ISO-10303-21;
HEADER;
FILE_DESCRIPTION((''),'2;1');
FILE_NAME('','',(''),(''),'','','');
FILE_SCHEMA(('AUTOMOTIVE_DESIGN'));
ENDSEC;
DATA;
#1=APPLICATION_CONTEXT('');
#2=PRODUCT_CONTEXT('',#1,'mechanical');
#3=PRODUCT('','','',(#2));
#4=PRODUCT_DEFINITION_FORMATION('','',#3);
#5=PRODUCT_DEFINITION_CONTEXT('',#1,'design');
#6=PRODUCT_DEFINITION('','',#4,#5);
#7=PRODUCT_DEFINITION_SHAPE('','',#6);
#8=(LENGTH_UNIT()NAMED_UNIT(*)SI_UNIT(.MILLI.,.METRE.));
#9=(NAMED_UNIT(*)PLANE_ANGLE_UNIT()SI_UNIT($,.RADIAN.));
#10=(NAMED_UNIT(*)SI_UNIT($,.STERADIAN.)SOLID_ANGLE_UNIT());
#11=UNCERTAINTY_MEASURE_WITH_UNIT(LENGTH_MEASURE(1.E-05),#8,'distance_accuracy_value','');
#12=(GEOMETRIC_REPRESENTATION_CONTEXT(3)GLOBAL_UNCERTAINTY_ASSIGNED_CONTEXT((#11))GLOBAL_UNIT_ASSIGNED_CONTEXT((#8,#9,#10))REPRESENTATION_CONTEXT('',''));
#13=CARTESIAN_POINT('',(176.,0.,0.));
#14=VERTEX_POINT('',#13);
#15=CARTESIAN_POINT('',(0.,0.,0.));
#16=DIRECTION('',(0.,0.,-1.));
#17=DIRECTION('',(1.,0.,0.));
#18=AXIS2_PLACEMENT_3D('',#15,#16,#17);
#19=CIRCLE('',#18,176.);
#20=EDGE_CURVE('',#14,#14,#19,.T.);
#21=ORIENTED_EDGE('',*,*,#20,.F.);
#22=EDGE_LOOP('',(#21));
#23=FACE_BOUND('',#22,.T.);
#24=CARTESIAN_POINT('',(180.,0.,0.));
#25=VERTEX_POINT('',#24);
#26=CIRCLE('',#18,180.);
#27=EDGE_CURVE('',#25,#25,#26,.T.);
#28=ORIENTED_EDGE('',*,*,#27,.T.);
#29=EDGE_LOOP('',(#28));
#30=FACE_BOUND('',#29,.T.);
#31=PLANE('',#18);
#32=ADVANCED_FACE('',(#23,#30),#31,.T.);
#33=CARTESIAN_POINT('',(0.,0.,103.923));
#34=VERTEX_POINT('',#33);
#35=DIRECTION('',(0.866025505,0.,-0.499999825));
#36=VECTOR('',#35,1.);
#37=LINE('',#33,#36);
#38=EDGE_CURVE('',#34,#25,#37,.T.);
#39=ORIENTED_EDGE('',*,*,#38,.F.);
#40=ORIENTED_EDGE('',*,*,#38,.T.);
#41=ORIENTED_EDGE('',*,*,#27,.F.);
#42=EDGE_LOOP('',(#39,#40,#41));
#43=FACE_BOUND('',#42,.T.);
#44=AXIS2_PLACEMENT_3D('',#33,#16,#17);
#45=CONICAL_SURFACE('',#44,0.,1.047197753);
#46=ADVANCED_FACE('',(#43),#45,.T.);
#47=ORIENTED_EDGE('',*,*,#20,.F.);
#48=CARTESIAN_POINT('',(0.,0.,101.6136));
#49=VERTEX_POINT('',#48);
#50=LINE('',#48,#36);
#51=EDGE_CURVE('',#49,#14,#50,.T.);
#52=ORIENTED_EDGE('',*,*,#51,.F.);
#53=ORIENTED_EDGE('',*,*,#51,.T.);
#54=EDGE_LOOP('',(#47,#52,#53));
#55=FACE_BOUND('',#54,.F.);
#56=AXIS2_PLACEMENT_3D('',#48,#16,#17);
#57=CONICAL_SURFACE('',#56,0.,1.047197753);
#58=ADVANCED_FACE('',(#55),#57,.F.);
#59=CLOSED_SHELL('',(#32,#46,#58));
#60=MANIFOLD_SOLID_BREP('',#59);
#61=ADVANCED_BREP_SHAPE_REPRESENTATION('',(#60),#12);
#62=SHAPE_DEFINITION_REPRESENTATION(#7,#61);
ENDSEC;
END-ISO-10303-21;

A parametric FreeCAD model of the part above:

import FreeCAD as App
import Part
import Sketcher

V = App.Vector
Q = App.Units.Quantity

doc = App.newDocument("Part")
body = doc.addObject("PartDesign::Body", "Body")

# Sketch on XZ plane
sketch1 = doc.addObject("Sketcher::SketchObject", "Sketch")
body.addObject(sketch1)
sketch1.AttachmentSupport = (doc.XZ_Plane, [""])
sketch1.MapMode = "FlatFace"
sketch1.addGeometry(Part.LineSegment(V(0, 101.6, 0), V(0, 103.9, 0)), False)
sketch1.addGeometry(Part.LineSegment(V(0, 103.9, 0), V(180, 0, 0)), False)
sketch1.addGeometry(Part.LineSegment(V(180, 0, 0), V(176, 0, 0)), False)
sketch1.addGeometry(Part.LineSegment(V(176, 0, 0), V(0, 101.6, 0)), False)
sketch1.addConstraint(Sketcher.Constraint("Coincident", 0, 2, 1, 1))
sketch1.addConstraint(Sketcher.Constraint("Coincident", 1, 2, 2, 1))
sketch1.addConstraint(Sketcher.Constraint("Coincident", 2, 2, 3, 1))
sketch1.addConstraint(Sketcher.Constraint("Coincident", 3, 2, 0, 1))
sketch1.addConstraint(Sketcher.Constraint("Vertical", 0))
sketch1.addConstraint(Sketcher.Constraint("Horizontal", 2))
sketch1.addConstraint(Sketcher.Constraint("PointOnObject", 0, 2, -2))
sketch1.addConstraint(Sketcher.Constraint("PointOnObject", 1, 2, -1))
sketch1.addConstraint(Sketcher.Constraint("Parallel", 1, 3))
sketch1.addConstraint(Sketcher.Constraint("Angle", 1, Q("-30 deg")))
sketch1.addConstraint(Sketcher.Constraint("DistanceX", -1, 1, 1, 2, Q("180 mm")))
sketch1.addConstraint(Sketcher.Constraint("DistanceX", 2, 2, 2, 1, Q("4 mm")))
revolution = doc.addObject("PartDesign::Revolution", "Revolution")
body.addObject(revolution)
revolution.Profile = sketch1
revolution.ReferenceAxis = (sketch1, ["V_Axis"])
revolution.Angle = 360

doc.recompute()
